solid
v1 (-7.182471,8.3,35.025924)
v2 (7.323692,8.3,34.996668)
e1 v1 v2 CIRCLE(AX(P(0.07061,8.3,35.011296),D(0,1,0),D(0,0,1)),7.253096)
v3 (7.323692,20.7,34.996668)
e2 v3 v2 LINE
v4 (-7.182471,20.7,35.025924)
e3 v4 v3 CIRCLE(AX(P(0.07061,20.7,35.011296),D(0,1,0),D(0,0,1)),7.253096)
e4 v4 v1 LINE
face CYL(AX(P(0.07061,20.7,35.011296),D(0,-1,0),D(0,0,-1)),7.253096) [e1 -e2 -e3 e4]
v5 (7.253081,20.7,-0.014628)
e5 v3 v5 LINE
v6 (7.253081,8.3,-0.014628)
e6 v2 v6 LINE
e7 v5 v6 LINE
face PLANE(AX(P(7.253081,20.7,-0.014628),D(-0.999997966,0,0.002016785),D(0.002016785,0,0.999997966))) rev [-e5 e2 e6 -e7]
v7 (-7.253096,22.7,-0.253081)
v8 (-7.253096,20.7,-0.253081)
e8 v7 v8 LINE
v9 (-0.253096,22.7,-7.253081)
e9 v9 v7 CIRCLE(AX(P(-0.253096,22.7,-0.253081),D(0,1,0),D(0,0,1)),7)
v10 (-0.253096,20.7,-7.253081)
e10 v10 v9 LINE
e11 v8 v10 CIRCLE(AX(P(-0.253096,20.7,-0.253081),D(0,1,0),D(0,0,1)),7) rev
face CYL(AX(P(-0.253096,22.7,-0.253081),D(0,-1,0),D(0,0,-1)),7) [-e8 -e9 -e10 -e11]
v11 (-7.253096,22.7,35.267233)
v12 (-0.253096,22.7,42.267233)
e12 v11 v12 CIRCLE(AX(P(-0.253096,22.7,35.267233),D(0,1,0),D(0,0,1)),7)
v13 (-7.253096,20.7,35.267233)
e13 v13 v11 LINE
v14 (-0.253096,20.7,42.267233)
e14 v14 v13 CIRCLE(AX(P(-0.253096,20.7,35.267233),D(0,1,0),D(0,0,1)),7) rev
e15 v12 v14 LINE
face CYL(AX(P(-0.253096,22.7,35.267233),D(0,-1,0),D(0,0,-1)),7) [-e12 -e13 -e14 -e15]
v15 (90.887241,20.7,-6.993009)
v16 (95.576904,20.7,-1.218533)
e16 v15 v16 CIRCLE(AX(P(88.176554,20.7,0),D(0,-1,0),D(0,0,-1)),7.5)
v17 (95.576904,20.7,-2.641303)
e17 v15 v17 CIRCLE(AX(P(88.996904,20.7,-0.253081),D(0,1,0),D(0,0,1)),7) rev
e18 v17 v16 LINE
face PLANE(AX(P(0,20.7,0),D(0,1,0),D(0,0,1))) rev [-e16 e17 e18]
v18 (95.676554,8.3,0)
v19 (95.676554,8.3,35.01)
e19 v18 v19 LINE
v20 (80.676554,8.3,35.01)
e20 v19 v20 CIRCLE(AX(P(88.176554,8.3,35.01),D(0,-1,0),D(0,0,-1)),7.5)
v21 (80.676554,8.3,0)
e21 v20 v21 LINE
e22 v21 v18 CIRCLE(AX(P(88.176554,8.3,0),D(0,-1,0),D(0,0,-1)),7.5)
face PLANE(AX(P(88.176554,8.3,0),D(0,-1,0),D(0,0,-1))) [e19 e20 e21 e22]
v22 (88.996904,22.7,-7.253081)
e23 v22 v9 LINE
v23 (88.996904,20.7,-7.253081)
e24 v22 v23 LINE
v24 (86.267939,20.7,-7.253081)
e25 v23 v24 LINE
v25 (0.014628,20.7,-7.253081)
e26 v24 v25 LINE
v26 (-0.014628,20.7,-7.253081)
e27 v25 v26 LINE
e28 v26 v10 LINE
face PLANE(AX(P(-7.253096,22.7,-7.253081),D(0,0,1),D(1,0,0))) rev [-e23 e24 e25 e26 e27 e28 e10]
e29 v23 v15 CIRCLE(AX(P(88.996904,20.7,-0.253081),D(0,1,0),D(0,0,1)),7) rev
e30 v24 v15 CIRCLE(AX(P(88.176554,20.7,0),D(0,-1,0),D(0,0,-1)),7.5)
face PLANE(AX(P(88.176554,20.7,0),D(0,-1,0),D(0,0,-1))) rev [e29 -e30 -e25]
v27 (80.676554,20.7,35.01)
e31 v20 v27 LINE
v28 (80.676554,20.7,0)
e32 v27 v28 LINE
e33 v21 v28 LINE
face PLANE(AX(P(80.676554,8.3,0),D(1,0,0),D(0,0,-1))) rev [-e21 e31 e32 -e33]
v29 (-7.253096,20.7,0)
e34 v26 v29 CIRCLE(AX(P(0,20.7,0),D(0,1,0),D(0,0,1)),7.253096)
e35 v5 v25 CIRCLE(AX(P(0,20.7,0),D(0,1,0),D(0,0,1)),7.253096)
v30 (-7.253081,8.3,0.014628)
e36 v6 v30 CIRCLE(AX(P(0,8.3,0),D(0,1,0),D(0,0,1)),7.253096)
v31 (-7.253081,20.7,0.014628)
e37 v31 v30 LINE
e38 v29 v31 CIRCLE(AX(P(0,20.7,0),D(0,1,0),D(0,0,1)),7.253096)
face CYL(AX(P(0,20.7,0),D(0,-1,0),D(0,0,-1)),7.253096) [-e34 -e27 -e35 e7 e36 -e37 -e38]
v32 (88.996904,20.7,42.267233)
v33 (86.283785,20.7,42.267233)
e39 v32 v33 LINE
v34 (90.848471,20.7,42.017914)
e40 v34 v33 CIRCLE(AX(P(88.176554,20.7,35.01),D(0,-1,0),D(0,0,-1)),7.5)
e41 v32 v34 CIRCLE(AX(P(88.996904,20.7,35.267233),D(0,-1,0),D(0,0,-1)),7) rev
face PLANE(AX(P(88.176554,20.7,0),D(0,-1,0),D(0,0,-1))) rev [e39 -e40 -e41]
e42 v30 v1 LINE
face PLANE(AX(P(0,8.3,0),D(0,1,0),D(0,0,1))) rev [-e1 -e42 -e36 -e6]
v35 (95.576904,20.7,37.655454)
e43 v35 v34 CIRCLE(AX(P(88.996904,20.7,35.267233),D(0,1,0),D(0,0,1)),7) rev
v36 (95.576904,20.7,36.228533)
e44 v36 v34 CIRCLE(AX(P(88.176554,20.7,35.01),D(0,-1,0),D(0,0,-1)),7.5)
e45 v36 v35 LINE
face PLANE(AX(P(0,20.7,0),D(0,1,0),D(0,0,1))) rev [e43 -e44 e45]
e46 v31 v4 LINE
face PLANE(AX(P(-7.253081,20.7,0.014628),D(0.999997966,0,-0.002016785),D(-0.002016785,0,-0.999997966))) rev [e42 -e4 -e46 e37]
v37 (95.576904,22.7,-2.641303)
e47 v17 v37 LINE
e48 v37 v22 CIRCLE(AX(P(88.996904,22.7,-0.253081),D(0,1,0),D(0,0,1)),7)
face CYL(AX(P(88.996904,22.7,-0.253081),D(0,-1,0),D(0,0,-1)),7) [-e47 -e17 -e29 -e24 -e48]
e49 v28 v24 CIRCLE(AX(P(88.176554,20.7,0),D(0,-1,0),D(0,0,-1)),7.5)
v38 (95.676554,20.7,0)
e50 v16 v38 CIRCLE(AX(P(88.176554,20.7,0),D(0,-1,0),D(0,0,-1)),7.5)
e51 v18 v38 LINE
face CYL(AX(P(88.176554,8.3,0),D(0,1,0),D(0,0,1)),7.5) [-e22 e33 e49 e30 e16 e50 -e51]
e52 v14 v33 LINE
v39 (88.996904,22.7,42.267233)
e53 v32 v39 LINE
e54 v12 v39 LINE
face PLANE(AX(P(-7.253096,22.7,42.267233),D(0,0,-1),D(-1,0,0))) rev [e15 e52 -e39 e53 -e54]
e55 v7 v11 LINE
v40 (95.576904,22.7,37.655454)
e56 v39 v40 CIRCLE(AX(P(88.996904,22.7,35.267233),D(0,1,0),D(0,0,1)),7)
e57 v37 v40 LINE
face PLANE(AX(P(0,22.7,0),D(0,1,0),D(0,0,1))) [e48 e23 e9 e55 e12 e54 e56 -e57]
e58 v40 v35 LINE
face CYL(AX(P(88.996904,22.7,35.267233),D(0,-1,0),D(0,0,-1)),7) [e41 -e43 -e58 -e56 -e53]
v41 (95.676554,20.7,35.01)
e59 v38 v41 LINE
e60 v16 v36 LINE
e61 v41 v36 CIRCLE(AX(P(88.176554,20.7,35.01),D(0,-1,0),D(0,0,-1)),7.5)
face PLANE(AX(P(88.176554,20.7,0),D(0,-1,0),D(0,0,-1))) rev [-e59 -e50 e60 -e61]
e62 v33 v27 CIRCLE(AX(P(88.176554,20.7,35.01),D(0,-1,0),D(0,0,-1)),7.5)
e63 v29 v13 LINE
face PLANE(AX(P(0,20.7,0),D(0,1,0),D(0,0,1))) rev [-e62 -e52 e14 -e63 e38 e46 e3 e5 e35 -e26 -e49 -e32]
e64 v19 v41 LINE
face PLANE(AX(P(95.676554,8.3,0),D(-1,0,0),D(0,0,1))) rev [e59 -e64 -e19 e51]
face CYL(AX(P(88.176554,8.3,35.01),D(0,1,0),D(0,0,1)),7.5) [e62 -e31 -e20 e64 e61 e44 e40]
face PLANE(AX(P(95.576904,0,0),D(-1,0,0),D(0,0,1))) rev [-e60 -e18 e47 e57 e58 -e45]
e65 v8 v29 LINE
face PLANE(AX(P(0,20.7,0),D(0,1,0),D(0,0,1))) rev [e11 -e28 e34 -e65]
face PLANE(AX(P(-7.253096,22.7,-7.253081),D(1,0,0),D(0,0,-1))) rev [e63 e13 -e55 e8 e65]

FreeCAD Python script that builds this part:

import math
import FreeCAD as App
import Part
import Sketcher
from FreeCAD import Vector
Q = App.Units.Quantity


def edges_at(feature, points):
    """Names of the edges that pass closest to the given points."""
    edges = feature.Shape.Edges
    near = lambda p: min(range(len(edges)), key=lambda i: edges[i].distToShape(Part.Vertex(*p))[0])
    return sorted({f"Edge{near(p) + 1}" for p in points})


def add_polygon(sketch, points):
    """Adds a closed chain of lines whose ends are joined by coincident constraints."""
    first, n = sketch.GeometryCount, len(points)
    for a, b in zip(points, points[1:] + points[:1]):
        sketch.addGeometry(Part.LineSegment(App.Vector(*a, 0), App.Vector(*b, 0)), False)
    for i in range(n):
        sketch.addConstraint(Sketcher.Constraint("Coincident", first + i, 2, first + (i + 1) % n, 1))

doc = App.newDocument("Part")
body = doc.addObject("PartDesign::Body", "Body")

# Sketch on XZ plane
sketch1 = body.newObject("Sketcher::SketchObject", "Sketch")
sketch1.AttachmentSupport = (doc.getObject("XZ_Plane"), [""])
sketch1.MapMode = "FlatFace"
sketch1.addGeometry(Part.LineSegment(Vector(7, 35, 0), Vector(7, 0, 0)), False)
sketch1.addGeometry(Part.ArcOfCircle(Part.Circle(Vector(0, 0, 0), Vector(0, 0, 1), 7), math.radians(180), math.radians(360)), False)
sketch1.addGeometry(Part.LineSegment(Vector(-7, 0, 0), Vector(-7, 35, 0)), False)
sketch1.addGeometry(Part.ArcOfCircle(Part.Circle(Vector(0, 35, 0), Vector(0, 0, 1), 7), math.radians(0), math.radians(180)), False)
sketch1.addConstraint(Sketcher.Constraint("Tangent", 0, 2, 1, 2))
sketch1.addConstraint(Sketcher.Constraint("Tangent", 1, 1, 2, 1))
sketch1.addConstraint(Sketcher.Constraint("Tangent", 2, 2, 3, 2))
sketch1.addConstraint(Sketcher.Constraint("Tangent", 3, 1, 0, 1))
sketch1.addConstraint(Sketcher.Constraint("Vertical", 0))
sketch1.addConstraint(Sketcher.Constraint("Vertical", 2))
sketch1.addConstraint(Sketcher.Constraint("Coincident", 1, 3, -1, 1))
sketch1.addConstraint(Sketcher.Constraint("DistanceY", 0, 2, 0, 1, Q("35 mm")))
sketch1.addConstraint(Sketcher.Constraint("Radius", 1, Q("7.25 mm")))
pad1 = body.newObject("PartDesign::Pad", "Pad")
pad1.Profile = sketch1
pad1.Length = 4.5
pad1.Reversed = True

# Sketch on XZ plane
sketch2 = body.newObject("Sketcher::SketchObject", "Sketch001")
sketch2.AttachmentSupport = (doc.getObject("XZ_Plane"), [""])
sketch2.MapMode = "FlatFace"
sketch2.AttachmentOffset = App.Placement(Vector(0, 0, -4.5), App.Rotation())
sketch2.addGeometry(Part.ArcOfCircle(Part.Circle(Vector(0.07, 35.01, 0), Vector(0, 0, 1), 2.69), math.radians(0), math.radians(180)), False)
sketch2.addGeometry(Part.LineSegment(Vector(2.76, 35.01, 0), Vector(2.76, 0.46, 0)), False)
sketch2.addGeometry(Part.ArcOfCircle(Part.Circle(Vector(0.07, 0.01, 0), Vector(0, 0, 1), 2.73), math.radians(0), math.radians(9.41)), False)
sketch2.addGeometry(Part.ArcOfCircle(Part.Circle(Vector(0.07, 0.01, 0), Vector(0, 0, 1), 2.73), math.radians(171), math.radians(360)), False)
sketch2.addGeometry(Part.LineSegment(Vector(-2.62, 0.46, 0), Vector(-2.62, 35.01, 0)), False)
sketch2.addConstraint(Sketcher.Constraint("Tangent", 0, 1, 1, 1))
sketch2.addConstraint(Sketcher.Constraint("Coincident", 1, 2, 2, 2))
sketch2.addConstraint(Sketcher.Constraint("Tangent", 2, 1, 3, 2))
sketch2.addConstraint(Sketcher.Constraint("Coincident", 3, 1, 4, 1))
sketch2.addConstraint(Sketcher.Constraint("Tangent", 4, 2, 0, 2))
sketch2.addConstraint(Sketcher.Constraint("Vertical", 1))
sketch2.addConstraint(Sketcher.Constraint("Vertical", 4))
sketch2.addConstraint(Sketcher.Constraint("Equal", 2, 3))
sketch2.addConstraint(Sketcher.Constraint("Horizontal", 3, 3, 2, 1))
sketch2.addConstraint(Sketcher.Constraint("Horizontal", 1, 2, 3, 1))
sketch2.addConstraint(Sketcher.Constraint("DistanceY", 2, 3, 0, 3, Q("35 mm")))
sketch2.addConstraint(Sketcher.Constraint("Radius", 0, Q("2.693182 mm")))
sketch2.addConstraint(Sketcher.Constraint("Radius", 2, Q("2.729922 mm")))
sketch2.addConstraint(Sketcher.Constraint("DistanceX", -1, 1, 0, 3, Q("0.07061 mm")))
sketch2.addConstraint(Sketcher.Constraint("DistanceY", -1, 1, 0, 3, Q("35.011296 mm")))
pad2 = body.newObject("PartDesign::Pad", "Pad001")
pad2.Profile = sketch2
pad2.Length = 3.8
pad2.Reversed = True

# Sketch on XZ plane
sketch3 = body.newObject("Sketcher::SketchObject", "Sketch002")
sketch3.AttachmentSupport = (doc.getObject("XZ_Plane"), [""])
sketch3.MapMode = "FlatFace"
sketch3.AttachmentOffset = App.Placement(Vector(0, 0, -8.3), App.Rotation())
sketch3.addGeometry(Part.LineSegment(Vector(7, 35, 0), Vector(7, 0, 0)), False)
sketch3.addGeometry(Part.ArcOfCircle(Part.Circle(Vector(0, 0, 0), Vector(0, 0, 1), 7), math.radians(180), math.radians(360)), False)
sketch3.addGeometry(Part.LineSegment(Vector(-7, 0, 0), Vector(-7, 35, 0)), False)
sketch3.addGeometry(Part.ArcOfCircle(Part.Circle(Vector(0, 35, 0), Vector(0, 0, 1), 7), math.radians(0), math.radians(180)), False)
sketch3.addConstraint(Sketcher.Constraint("Tangent", 0, 2, 1, 2))
sketch3.addConstraint(Sketcher.Constraint("Tangent", 1, 1, 2, 1))
sketch3.addConstraint(Sketcher.Constraint("Tangent", 2, 2, 3, 2))
sketch3.addConstraint(Sketcher.Constraint("Tangent", 3, 1, 0, 1))
sketch3.addConstraint(Sketcher.Constraint("Coincident", 1, 3, -1, 1))
sketch3.addConstraint(Sketcher.Constraint("Equal", 1, 3))
sketch3.addConstraint(Sketcher.Constraint("Radius", 1, Q("7.253096 mm")))
sketch3.addConstraint(Sketcher.Constraint("DistanceX", -1, 1, 3, 3, Q("0.07061 mm")))
sketch3.addConstraint(Sketcher.Constraint("DistanceY", -1, 1, 3, 1, Q("34.996668 mm")))
pad3 = body.newObject("PartDesign::Pad", "Pad002")
pad3.Profile = sketch3
pad3.Length = 12.4
pad3.Reversed = True

# Sketch on XZ plane
sketch4 = body.newObject("Sketcher::SketchObject", "Sketch003")
sketch4.AttachmentSupport = (doc.getObject("XZ_Plane"), [""])
sketch4.MapMode = "FlatFace"
sketch4.AttachmentOffset = App.Placement(Vector(0, 0, -20.7), App.Rotation())
add_polygon(sketch4, [(-7, -7), (-7, 42), (96, 42), (96, -7)])  # lines 0-3
sketch4.addConstraint(Sketcher.Constraint("Vertical", 0))
sketch4.addConstraint(Sketcher.Constraint("Horizontal", 1))
sketch4.addConstraint(Sketcher.Constraint("Vertical", 2))
sketch4.addConstraint(Sketcher.Constraint("Horizontal", 3))
sketch4.addConstraint(Sketcher.Constraint("DistanceX", 1, 1, 1, 2, Q("103.25 mm")))
sketch4.addConstraint(Sketcher.Constraint("DistanceY", 0, 1, 0, 2, Q("49.520314 mm")))
sketch4.addConstraint(Sketcher.Constraint("DistanceY", 2, 2, -1, 1, Q("7.253081 mm")))
sketch4.addConstraint(Sketcher.Constraint("DistanceX", 0, 2, -1, 1, Q("7.253096 mm")))
pad4 = body.newObject("PartDesign::Pad", "Pad003")
pad4.Profile = sketch4
pad4.Length = 2
pad4.Reversed = True
doc.recompute()

fillet = body.newObject("PartDesign::Fillet", "Fillet")
fillet.Base = (pad4, edges_at(pad4, [
    (95.997, 21.7, 42.267),
    (95.997, 21.7, -7.253),
    (-7.253, 21.7, -7.253),
    (-7.253, 21.7, 42.267),
]))
fillet.Radius = 7

# Sketch on YZ plane
sketch5 = body.newObject("Sketcher::SketchObject", "Sketch004")
sketch5.AttachmentSupport = (doc.getObject("YZ_Plane"), [""])
sketch5.MapMode = "FlatFace"
sketch5.AttachmentOffset = App.Placement(Vector(0, 0, 95.996904), App.Rotation())
add_polygon(sketch5, [(31, 60), (4, 60), (4, -14), (31, -14)])  # lines 0-3
sketch5.addConstraint(Sketcher.Constraint("Horizontal", 0))
sketch5.addConstraint(Sketcher.Constraint("Vertical", 1))
sketch5.addConstraint(Sketcher.Constraint("Horizontal", 2))
sketch5.addConstraint(Sketcher.Constraint("Vertical", 3))
sketch5.addConstraint(Sketcher.Constraint("DistanceX", 0, 2, 0, 1, Q("26.769622 mm")))
sketch5.addConstraint(Sketcher.Constraint("DistanceY", 1, 2, 1, 1, Q("74.836382 mm")))
sketch5.addConstraint(Sketcher.Constraint("DistanceX", -1, 1, 0, 2, Q("3.836588 mm")))
sketch5.addConstraint(Sketcher.Constraint("DistanceY", -1, 1, 0, 2, Q("60.34656 mm")))
pocket1 = body.newObject("PartDesign::Pocket", "Pocket")
pocket1.Profile = sketch5
pocket1.Length = 0.42

# Sketch on XZ plane
sketch6 = body.newObject("Sketcher::SketchObject", "Sketch005")
sketch6.AttachmentSupport = (doc.getObject("XZ_Plane"), [""])
sketch6.MapMode = "FlatFace"
add_polygon(sketch6, [(-18, 49), (-18, -16), (15, -16), (15, 49)])  # lines 0-3
sketch6.addConstraint(Sketcher.Constraint("Vertical", 0))
sketch6.addConstraint(Sketcher.Constraint("Horizontal", 1))
sketch6.addConstraint(Sketcher.Constraint("Vertical", 2))
sketch6.addConstraint(Sketcher.Constraint("Horizontal", 3))
sketch6.addConstraint(Sketcher.Constraint("DistanceY", 0, 2, 0, 1, Q("64.997822 mm")))
sketch6.addConstraint(Sketcher.Constraint("DistanceX", 1, 1, 1, 2, Q("32.821875 mm")))
sketch6.addConstraint(Sketcher.Constraint("DistanceY", 0, 2, -1, 1, Q("16.171909 mm")))
sketch6.addConstraint(Sketcher.Constraint("DistanceX", -1, 1, 1, 2, Q("14.695342 mm")))
pocket2 = body.newObject("PartDesign::Pocket", "Pocket001")
pocket2.Profile = sketch6
pocket2.Length = 8.3

# Sketch on XZ plane
sketch7 = body.newObject("Sketcher::SketchObject", "Sketch006")
sketch7.AttachmentSupport = (doc.getObject("XZ_Plane"), [""])
sketch7.MapMode = "FlatFace"
sketch7.AttachmentOffset = App.Placement(Vector(0, 0, -20.7), App.Rotation())
sketch7.addGeometry(Part.LineSegment(Vector(81, 35, 0), Vector(81, 0, 0)), False)
sketch7.addGeometry(Part.ArcOfCircle(Part.Circle(Vector(88, 0, 0), Vector(0, 0, 1), 8), math.radians(180), math.radians(360)), False)
sketch7.addGeometry(Part.LineSegment(Vector(96, 0, 0), Vector(96, 35, 0)), False)
sketch7.addGeometry(Part.ArcOfCircle(Part.Circle(Vector(88, 35, 0), Vector(0, 0, 1), 8), math.radians(0), math.radians(180)), False)
sketch7.addConstraint(Sketcher.Constraint("Tangent", 0, 2, 1, 1))
sketch7.addConstraint(Sketcher.Constraint("Tangent", 1, 2, 2, 1))
sketch7.addConstraint(Sketcher.Constraint("Tangent", 2, 2, 3, 1))
sketch7.addConstraint(Sketcher.Constraint("Tangent", 3, 2, 0, 1))
sketch7.addConstraint(Sketcher.Constraint("Vertical", 0))
sketch7.addConstraint(Sketcher.Constraint("Vertical", 2))
sketch7.addConstraint(Sketcher.Constraint("PointOnObject", 1, 3, -1))
sketch7.addConstraint(Sketcher.Constraint("Radius", 1, Q("7.5 mm")))
sketch7.addConstraint(Sketcher.Constraint("DistanceY", 0, 2, 0, 1, Q("35.01 mm")))
sketch7.addConstraint(Sketcher.Constraint("DistanceX", -1, 1, 1, 3, Q("88.176554 mm")))
pad5 = body.newObject("PartDesign::Pad", "Pad004")
pad5.Profile = sketch7
pad5.Length = 12.4

doc.recompute()
